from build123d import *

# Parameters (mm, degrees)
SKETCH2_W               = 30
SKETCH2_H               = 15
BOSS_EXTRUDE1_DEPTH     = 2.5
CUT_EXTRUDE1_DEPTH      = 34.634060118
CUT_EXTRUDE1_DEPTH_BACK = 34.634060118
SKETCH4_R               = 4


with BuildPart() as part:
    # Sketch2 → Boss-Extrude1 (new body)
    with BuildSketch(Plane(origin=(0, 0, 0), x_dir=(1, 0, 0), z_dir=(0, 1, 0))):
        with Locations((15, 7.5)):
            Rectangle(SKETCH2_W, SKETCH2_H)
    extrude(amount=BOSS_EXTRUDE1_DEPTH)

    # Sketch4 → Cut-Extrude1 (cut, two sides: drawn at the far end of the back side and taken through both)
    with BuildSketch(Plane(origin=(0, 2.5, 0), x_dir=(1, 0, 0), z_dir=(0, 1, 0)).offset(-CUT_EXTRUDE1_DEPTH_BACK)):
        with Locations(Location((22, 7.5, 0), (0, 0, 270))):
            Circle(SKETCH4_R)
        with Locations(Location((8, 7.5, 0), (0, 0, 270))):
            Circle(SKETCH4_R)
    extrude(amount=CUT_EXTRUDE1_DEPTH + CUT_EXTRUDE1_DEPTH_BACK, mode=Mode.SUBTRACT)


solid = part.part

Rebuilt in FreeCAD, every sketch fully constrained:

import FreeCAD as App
import Part
import Sketcher
Q = App.Units.Quantity


def add_polygon(sketch, points):
    """Adds a closed chain of lines whose ends are joined by coincident constraints."""
    first, n = sketch.GeometryCount, len(points)
    for a, b in zip(points, points[1:] + points[:1]):
        sketch.addGeometry(Part.LineSegment(App.Vector(*a, 0), App.Vector(*b, 0)), False)
    for i in range(n):
        sketch.addConstraint(Sketcher.Constraint("Coincident", first + i, 2, first + (i + 1) % n, 1))

doc = App.newDocument("Part")
body = doc.addObject("PartDesign::Body", "Body")

# Sketch on XZ plane
sketch1 = body.newObject("Sketcher::SketchObject", "Sketch")
sketch1.AttachmentSupport = (doc.getObject("XZ_Plane"), [""])
sketch1.MapMode = "FlatFace"
add_polygon(sketch1, [(0, -15), (0, 0), (30, 0), (30, -15)])  # lines 0-3
sketch1.addConstraint(Sketcher.Constraint("Vertical", 0))
sketch1.addConstraint(Sketcher.Constraint("Horizontal", 1))
sketch1.addConstraint(Sketcher.Constraint("Vertical", 2))
sketch1.addConstraint(Sketcher.Constraint("Horizontal", 3))
sketch1.addConstraint(Sketcher.Constraint("Coincident", 0, 2, -1, 1))
sketch1.addConstraint(Sketcher.Constraint("DistanceX", 1, 1, 1, 2, Q("30 mm")))
sketch1.addConstraint(Sketcher.Constraint("DistanceY", 0, 1, 0, 2, Q("15 mm")))
pad1 = body.newObject("PartDesign::Pad", "Pad")
pad1.Profile = sketch1
pad1.Length = 2.5
pad1.Reversed = True

# Sketch on XZ plane
sketch2 = body.newObject("Sketcher::SketchObject", "Sketch001")
sketch2.AttachmentSupport = (doc.getObject("XZ_Plane"), [""])
sketch2.MapMode = "FlatFace"
sketch2.AttachmentOffset = App.Placement(App.Vector(0, 0, -2.5), App.Rotation())
sketch2.addGeometry(Part.Circle(App.Vector(22, -7.5, 0), App.Vector(0, 0, 1), 4), False)
sketch2.addGeometry(Part.Circle(App.Vector(8, -7.5, 0), App.Vector(0, 0, 1), 4), False)
sketch2.addConstraint(Sketcher.Constraint("Equal", 0, 1))
sketch2.addConstraint(Sketcher.Constraint("Horizontal", 0, 3, 1, 3))
sketch2.addConstraint(Sketcher.Constraint("Diameter", 0, Q("8 mm")))
sketch2.addConstraint(Sketcher.Constraint("DistanceX", -1, 1, 0, 3, Q("22 mm")))
sketch2.addConstraint(Sketcher.Constraint("DistanceX", -1, 1, 1, 3, Q("8 mm")))
sketch2.addConstraint(Sketcher.Constraint("DistanceY", 0, 3, -1, 1, Q("7.5 mm")))
pocket1 = body.newObject("PartDesign::Pocket", "Pocket")
pocket1.Profile = sketch2
pocket1.Type = "ThroughAll"
pocket1.Midplane = True

doc.recompute()
